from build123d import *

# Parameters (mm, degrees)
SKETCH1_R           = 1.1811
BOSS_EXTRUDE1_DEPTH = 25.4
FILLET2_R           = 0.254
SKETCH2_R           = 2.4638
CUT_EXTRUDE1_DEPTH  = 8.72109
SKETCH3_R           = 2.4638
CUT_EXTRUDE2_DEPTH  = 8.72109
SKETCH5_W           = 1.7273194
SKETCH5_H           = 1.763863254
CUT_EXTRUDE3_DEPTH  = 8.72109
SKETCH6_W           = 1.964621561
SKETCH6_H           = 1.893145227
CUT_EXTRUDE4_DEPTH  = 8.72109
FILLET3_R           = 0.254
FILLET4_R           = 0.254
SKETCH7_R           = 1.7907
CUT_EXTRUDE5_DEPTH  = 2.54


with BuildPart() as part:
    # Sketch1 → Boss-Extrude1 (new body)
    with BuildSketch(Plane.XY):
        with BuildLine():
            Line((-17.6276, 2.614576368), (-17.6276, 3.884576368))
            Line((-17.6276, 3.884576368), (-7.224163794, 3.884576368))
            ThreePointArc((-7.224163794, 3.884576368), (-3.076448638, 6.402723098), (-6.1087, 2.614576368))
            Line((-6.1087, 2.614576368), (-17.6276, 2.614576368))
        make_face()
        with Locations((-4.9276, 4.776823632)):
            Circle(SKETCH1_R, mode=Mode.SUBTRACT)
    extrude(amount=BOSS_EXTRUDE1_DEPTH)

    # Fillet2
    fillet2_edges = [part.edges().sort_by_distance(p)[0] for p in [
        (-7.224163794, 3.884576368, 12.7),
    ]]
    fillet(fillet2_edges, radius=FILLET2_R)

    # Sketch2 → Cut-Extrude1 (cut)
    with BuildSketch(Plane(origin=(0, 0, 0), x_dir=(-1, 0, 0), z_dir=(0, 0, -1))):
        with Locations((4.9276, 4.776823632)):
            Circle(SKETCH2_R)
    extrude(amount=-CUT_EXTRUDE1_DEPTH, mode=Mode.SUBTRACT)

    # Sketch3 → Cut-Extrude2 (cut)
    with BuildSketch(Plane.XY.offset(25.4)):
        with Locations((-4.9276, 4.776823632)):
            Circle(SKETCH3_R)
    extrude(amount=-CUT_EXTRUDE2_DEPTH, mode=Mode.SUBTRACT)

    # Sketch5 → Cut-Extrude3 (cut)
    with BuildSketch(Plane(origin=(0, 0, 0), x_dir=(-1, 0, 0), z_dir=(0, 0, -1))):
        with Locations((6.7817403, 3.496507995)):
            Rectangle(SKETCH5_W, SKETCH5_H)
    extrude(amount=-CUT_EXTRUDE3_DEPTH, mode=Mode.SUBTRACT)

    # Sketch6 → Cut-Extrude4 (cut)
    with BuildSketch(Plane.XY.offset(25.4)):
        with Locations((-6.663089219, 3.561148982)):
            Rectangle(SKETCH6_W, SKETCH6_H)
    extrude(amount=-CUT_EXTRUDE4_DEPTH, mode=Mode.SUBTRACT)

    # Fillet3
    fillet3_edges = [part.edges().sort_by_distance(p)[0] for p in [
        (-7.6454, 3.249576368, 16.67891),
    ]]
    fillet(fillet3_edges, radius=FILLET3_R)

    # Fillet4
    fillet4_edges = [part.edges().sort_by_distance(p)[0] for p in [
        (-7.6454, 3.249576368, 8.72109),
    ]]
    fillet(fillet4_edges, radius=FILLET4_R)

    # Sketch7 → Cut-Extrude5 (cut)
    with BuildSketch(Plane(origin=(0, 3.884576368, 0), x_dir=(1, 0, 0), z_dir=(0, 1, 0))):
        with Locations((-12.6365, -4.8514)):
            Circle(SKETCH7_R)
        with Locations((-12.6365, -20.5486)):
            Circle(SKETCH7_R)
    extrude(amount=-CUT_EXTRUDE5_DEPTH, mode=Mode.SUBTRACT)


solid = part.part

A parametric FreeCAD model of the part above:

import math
import FreeCAD as App
import Part
import Sketcher

V = App.Vector
Q = App.Units.Quantity


def edges_at(feature, points):
    """Names of the edges that pass closest to the given points."""
    edges = feature.Shape.Edges
    near = lambda p: min(range(len(edges)), key=lambda i: edges[i].distToShape(Part.Vertex(*p))[0])
    return sorted({f"Edge{near(p) + 1}" for p in points})


def add_polygon(sketch, points):
    """Adds a closed chain of lines whose ends are joined by coincident constraints."""
    first, n = sketch.GeometryCount, len(points)
    for a, b in zip(points, points[1:] + points[:1]):
        sketch.addGeometry(Part.LineSegment(App.Vector(*a, 0), App.Vector(*b, 0)), False)
    for i in range(n):
        sketch.addConstraint(Sketcher.Constraint("Coincident", first + i, 2, first + (i + 1) % n, 1))

doc = App.newDocument("Part")
body = doc.addObject("PartDesign::Body", "Body")

sketch1 = body.newObject("Sketcher::SketchObject", "Sketch")
sketch1.AttachmentSupport = (doc.getObject("XY_Plane"), [""])
sketch1.MapMode = "FlatFace"
sketch1.addGeometry([
    Part.LineSegment(V(-17.6, 3.9, 0), V(-17.6, 2.6, 0)),
    Part.LineSegment(V(-17.6, 2.6, 0), V(-6.1, 2.6, 0)),
    Part.ArcOfCircle(Part.Circle(V(-4.9, 4.8, 0), V(0, 0, 1), 2.5), math.radians(-119), math.radians(201)),
    Part.LineSegment(V(-7.2, 3.9, 0), V(-17.6, 3.9, 0)),
    Part.Circle(V(-4.9, 4.8, 0), V(0, 0, 1), 1.2),
], False)
sketch1.addConstraint([
    Sketcher.Constraint("Coincident", 0, 2, 1, 1),
    Sketcher.Constraint("Coincident", 1, 2, 2, 1),
    Sketcher.Constraint("Coincident", 2, 2, 3, 1),
    Sketcher.Constraint("Coincident", 3, 2, 0, 1),
    Sketcher.Constraint("Vertical", 0),
    Sketcher.Constraint("Horizontal", 1),
    Sketcher.Constraint("Horizontal", 3),
    Sketcher.Constraint("Coincident", 4, 3, 2, 3),
    Sketcher.Constraint("Diameter", 4, Q("0.093 in")),
    Sketcher.Constraint("Radius", 2, Q("0.097 in")),
    Sketcher.Constraint("DistanceY", 0, 2, 0, 1, Q("0.05 in")),
    Sketcher.Constraint("DistanceX", 0, 2, 2, 3, Q("0.5 in")),
    Sketcher.Constraint("DistanceX", 1, 1, 1, 2, Q("0.4535 in")),
    Sketcher.Constraint("DistanceX", 2, 3, -1, 1, Q("0.194 in")),
    Sketcher.Constraint("DistanceY", -1, 1, 2, 3, Q("4.776824 mm")),
])
pad1 = body.newObject("PartDesign::Pad", "Pad")
pad1.Profile = sketch1
pad1.Length = Q("1 in")
doc.recompute()

fillet = body.newObject("PartDesign::Fillet", "Fillet")
fillet.Base = (pad1, edges_at(pad1, [(-7.224, 3.885, 12.7)]))
fillet.Radius = Q("0.01 in")

sketch2 = body.newObject("Sketcher::SketchObject", "Sketch001")
sketch2.AttachmentSupport = (doc.getObject("XY_Plane"), [""])
sketch2.MapMode = "FlatFace"
sketch2.addGeometry(Part.Circle(V(-4.9, 4.8, 0), V(0, 0, 1), 2.5), False)
sketch2.addConstraint([
    Sketcher.Constraint("Diameter", 0, Q("0.194 in")),
    Sketcher.Constraint("DistanceX", 0, 3, -1, 1, Q("0.194 in")),
    Sketcher.Constraint("DistanceY", -1, 1, 0, 3, Q("4.776824 mm")),
])
pocket1 = body.newObject("PartDesign::Pocket", "Pocket")
pocket1.Profile = sketch2
pocket1.Length = 8.72109
pocket1.Reversed = True

sketch3 = body.newObject("Sketcher::SketchObject", "Sketch002")
sketch3.AttachmentSupport = (doc.getObject("XY_Plane"), [""])
sketch3.MapMode = "FlatFace"
sketch3.AttachmentOffset = App.Placement(V(0, 0, 1 * 25.4), App.Rotation())
sketch3.addGeometry(Part.Circle(V(-4.9, 4.8, 0), V(0, 0, 1), 2.5), False)
sketch3.addConstraint([
    Sketcher.Constraint("Diameter", 0, Q("0.194 in")),
    Sketcher.Constraint("DistanceX", 0, 3, -1, 1, Q("0.194 in")),
    Sketcher.Constraint("DistanceY", -1, 1, 0, 3, Q("4.776824 mm")),
])
pocket2 = body.newObject("PartDesign::Pocket", "Pocket001")
pocket2.Profile = sketch3
pocket2.Length = 8.72109

sketch4 = body.newObject("Sketcher::SketchObject", "Sketch003")
sketch4.AttachmentSupport = (doc.getObject("XY_Plane"), [""])
sketch4.MapMode = "FlatFace"
add_polygon(sketch4, [(-5.9, 4.4), (-5.9, 2.6), (-7.6, 2.6), (-7.6, 4.4)])
sketch4.addConstraint([
    Sketcher.Constraint("Vertical", 0),
    Sketcher.Constraint("Horizontal", 1),
    Sketcher.Constraint("Vertical", 2),
    Sketcher.Constraint("Horizontal", 3),
    Sketcher.Constraint("DistanceX", 1, 2, -1, 1, Q("0.301 in")),
    Sketcher.Constraint("DistanceX", 1, 2, 1, 1, Q("1.727319 mm")),
    Sketcher.Constraint("DistanceY", 0, 2, 0, 1, Q("1.763863 mm")),
    Sketcher.Constraint("DistanceY", -1, 1, 2, 2, Q("4.37844 mm")),
])
pocket3 = body.newObject("PartDesign::Pocket", "Pocket002")
pocket3.Profile = sketch4
pocket3.Length = 8.72109
pocket3.Reversed = True

sketch5 = body.newObject("Sketcher::SketchObject", "Sketch004")
sketch5.AttachmentSupport = (doc.getObject("XY_Plane"), [""])
sketch5.MapMode = "FlatFace"
sketch5.AttachmentOffset = App.Placement(V(0, 0, 1 * 25.4), App.Rotation())
add_polygon(sketch5, [(-7.6, 4.5), (-7.6, 2.6), (-5.7, 2.6), (-5.7, 4.5)])
sketch5.addConstraint([
    Sketcher.Constraint("Vertical", 0),
    Sketcher.Constraint("Horizontal", 1),
    Sketcher.Constraint("Vertical", 2),
    Sketcher.Constraint("Horizontal", 3),
    Sketcher.Constraint("DistanceX", 0, 2, -1, 1, Q("0.301 in")),
    Sketcher.Constraint("DistanceX", 1, 1, 1, 2, Q("1.964622 mm")),
    Sketcher.Constraint("DistanceY", 0, 2, 0, 1, Q("1.893145 mm")),
    Sketcher.Constraint("DistanceY", -1, 1, 2, 2, Q("4.507722 mm")),
])
pocket4 = body.newObject("PartDesign::Pocket", "Pocket003")
pocket4.Profile = sketch5
pocket4.Length = 8.72109
doc.recompute()

fillet2 = body.newObject("PartDesign::Fillet", "Fillet001")
fillet2.Base = (pocket4, edges_at(pocket4, [(-7.645, 3.25, 16.679)]))
fillet2.Radius = Q("0.01 in")
doc.recompute()

fillet3 = body.newObject("PartDesign::Fillet", "Fillet002")
fillet3.Base = (fillet2, edges_at(fillet2, [(-7.645, 3.25, 8.721)]))
fillet3.Radius = Q("0.01 in")

sketch6 = body.newObject("Sketcher::SketchObject", "Sketch005")
sketch6.AttachmentSupport = (doc.getObject("XZ_Plane"), [""])
sketch6.MapMode = "FlatFace"
sketch6.AttachmentOffset = App.Placement(V(0, 0, -3.884576), App.Rotation())
sketch6.addGeometry([
    Part.Circle(V(-12.6, 4.9, 0), V(0, 0, 1), 1.8),
    Part.Circle(V(-12.6, 20.5, 0), V(0, 0, 1), 1.8),
], False)
sketch6.addConstraint([
    Sketcher.Constraint("Equal", 0, 1),
    Sketcher.Constraint("Vertical", 0, 3, 1, 3),
    Sketcher.Constraint("Diameter", 0, Q("0.141 in")),
    Sketcher.Constraint("DistanceY", -1, 1, 0, 3, Q("0.191 in")),
    Sketcher.Constraint("DistanceY", -1, 1, 1, 3, Q("0.809 in")),
    Sketcher.Constraint("DistanceX", 0, 3, -1, 1, Q("0.4975 in")),
])
pocket5 = body.newObject("PartDesign::Pocket", "Pocket004")
pocket5.Profile = sketch6
pocket5.Length = Q("0.1 in")
pocket5.Reversed = True

doc.recompute()
